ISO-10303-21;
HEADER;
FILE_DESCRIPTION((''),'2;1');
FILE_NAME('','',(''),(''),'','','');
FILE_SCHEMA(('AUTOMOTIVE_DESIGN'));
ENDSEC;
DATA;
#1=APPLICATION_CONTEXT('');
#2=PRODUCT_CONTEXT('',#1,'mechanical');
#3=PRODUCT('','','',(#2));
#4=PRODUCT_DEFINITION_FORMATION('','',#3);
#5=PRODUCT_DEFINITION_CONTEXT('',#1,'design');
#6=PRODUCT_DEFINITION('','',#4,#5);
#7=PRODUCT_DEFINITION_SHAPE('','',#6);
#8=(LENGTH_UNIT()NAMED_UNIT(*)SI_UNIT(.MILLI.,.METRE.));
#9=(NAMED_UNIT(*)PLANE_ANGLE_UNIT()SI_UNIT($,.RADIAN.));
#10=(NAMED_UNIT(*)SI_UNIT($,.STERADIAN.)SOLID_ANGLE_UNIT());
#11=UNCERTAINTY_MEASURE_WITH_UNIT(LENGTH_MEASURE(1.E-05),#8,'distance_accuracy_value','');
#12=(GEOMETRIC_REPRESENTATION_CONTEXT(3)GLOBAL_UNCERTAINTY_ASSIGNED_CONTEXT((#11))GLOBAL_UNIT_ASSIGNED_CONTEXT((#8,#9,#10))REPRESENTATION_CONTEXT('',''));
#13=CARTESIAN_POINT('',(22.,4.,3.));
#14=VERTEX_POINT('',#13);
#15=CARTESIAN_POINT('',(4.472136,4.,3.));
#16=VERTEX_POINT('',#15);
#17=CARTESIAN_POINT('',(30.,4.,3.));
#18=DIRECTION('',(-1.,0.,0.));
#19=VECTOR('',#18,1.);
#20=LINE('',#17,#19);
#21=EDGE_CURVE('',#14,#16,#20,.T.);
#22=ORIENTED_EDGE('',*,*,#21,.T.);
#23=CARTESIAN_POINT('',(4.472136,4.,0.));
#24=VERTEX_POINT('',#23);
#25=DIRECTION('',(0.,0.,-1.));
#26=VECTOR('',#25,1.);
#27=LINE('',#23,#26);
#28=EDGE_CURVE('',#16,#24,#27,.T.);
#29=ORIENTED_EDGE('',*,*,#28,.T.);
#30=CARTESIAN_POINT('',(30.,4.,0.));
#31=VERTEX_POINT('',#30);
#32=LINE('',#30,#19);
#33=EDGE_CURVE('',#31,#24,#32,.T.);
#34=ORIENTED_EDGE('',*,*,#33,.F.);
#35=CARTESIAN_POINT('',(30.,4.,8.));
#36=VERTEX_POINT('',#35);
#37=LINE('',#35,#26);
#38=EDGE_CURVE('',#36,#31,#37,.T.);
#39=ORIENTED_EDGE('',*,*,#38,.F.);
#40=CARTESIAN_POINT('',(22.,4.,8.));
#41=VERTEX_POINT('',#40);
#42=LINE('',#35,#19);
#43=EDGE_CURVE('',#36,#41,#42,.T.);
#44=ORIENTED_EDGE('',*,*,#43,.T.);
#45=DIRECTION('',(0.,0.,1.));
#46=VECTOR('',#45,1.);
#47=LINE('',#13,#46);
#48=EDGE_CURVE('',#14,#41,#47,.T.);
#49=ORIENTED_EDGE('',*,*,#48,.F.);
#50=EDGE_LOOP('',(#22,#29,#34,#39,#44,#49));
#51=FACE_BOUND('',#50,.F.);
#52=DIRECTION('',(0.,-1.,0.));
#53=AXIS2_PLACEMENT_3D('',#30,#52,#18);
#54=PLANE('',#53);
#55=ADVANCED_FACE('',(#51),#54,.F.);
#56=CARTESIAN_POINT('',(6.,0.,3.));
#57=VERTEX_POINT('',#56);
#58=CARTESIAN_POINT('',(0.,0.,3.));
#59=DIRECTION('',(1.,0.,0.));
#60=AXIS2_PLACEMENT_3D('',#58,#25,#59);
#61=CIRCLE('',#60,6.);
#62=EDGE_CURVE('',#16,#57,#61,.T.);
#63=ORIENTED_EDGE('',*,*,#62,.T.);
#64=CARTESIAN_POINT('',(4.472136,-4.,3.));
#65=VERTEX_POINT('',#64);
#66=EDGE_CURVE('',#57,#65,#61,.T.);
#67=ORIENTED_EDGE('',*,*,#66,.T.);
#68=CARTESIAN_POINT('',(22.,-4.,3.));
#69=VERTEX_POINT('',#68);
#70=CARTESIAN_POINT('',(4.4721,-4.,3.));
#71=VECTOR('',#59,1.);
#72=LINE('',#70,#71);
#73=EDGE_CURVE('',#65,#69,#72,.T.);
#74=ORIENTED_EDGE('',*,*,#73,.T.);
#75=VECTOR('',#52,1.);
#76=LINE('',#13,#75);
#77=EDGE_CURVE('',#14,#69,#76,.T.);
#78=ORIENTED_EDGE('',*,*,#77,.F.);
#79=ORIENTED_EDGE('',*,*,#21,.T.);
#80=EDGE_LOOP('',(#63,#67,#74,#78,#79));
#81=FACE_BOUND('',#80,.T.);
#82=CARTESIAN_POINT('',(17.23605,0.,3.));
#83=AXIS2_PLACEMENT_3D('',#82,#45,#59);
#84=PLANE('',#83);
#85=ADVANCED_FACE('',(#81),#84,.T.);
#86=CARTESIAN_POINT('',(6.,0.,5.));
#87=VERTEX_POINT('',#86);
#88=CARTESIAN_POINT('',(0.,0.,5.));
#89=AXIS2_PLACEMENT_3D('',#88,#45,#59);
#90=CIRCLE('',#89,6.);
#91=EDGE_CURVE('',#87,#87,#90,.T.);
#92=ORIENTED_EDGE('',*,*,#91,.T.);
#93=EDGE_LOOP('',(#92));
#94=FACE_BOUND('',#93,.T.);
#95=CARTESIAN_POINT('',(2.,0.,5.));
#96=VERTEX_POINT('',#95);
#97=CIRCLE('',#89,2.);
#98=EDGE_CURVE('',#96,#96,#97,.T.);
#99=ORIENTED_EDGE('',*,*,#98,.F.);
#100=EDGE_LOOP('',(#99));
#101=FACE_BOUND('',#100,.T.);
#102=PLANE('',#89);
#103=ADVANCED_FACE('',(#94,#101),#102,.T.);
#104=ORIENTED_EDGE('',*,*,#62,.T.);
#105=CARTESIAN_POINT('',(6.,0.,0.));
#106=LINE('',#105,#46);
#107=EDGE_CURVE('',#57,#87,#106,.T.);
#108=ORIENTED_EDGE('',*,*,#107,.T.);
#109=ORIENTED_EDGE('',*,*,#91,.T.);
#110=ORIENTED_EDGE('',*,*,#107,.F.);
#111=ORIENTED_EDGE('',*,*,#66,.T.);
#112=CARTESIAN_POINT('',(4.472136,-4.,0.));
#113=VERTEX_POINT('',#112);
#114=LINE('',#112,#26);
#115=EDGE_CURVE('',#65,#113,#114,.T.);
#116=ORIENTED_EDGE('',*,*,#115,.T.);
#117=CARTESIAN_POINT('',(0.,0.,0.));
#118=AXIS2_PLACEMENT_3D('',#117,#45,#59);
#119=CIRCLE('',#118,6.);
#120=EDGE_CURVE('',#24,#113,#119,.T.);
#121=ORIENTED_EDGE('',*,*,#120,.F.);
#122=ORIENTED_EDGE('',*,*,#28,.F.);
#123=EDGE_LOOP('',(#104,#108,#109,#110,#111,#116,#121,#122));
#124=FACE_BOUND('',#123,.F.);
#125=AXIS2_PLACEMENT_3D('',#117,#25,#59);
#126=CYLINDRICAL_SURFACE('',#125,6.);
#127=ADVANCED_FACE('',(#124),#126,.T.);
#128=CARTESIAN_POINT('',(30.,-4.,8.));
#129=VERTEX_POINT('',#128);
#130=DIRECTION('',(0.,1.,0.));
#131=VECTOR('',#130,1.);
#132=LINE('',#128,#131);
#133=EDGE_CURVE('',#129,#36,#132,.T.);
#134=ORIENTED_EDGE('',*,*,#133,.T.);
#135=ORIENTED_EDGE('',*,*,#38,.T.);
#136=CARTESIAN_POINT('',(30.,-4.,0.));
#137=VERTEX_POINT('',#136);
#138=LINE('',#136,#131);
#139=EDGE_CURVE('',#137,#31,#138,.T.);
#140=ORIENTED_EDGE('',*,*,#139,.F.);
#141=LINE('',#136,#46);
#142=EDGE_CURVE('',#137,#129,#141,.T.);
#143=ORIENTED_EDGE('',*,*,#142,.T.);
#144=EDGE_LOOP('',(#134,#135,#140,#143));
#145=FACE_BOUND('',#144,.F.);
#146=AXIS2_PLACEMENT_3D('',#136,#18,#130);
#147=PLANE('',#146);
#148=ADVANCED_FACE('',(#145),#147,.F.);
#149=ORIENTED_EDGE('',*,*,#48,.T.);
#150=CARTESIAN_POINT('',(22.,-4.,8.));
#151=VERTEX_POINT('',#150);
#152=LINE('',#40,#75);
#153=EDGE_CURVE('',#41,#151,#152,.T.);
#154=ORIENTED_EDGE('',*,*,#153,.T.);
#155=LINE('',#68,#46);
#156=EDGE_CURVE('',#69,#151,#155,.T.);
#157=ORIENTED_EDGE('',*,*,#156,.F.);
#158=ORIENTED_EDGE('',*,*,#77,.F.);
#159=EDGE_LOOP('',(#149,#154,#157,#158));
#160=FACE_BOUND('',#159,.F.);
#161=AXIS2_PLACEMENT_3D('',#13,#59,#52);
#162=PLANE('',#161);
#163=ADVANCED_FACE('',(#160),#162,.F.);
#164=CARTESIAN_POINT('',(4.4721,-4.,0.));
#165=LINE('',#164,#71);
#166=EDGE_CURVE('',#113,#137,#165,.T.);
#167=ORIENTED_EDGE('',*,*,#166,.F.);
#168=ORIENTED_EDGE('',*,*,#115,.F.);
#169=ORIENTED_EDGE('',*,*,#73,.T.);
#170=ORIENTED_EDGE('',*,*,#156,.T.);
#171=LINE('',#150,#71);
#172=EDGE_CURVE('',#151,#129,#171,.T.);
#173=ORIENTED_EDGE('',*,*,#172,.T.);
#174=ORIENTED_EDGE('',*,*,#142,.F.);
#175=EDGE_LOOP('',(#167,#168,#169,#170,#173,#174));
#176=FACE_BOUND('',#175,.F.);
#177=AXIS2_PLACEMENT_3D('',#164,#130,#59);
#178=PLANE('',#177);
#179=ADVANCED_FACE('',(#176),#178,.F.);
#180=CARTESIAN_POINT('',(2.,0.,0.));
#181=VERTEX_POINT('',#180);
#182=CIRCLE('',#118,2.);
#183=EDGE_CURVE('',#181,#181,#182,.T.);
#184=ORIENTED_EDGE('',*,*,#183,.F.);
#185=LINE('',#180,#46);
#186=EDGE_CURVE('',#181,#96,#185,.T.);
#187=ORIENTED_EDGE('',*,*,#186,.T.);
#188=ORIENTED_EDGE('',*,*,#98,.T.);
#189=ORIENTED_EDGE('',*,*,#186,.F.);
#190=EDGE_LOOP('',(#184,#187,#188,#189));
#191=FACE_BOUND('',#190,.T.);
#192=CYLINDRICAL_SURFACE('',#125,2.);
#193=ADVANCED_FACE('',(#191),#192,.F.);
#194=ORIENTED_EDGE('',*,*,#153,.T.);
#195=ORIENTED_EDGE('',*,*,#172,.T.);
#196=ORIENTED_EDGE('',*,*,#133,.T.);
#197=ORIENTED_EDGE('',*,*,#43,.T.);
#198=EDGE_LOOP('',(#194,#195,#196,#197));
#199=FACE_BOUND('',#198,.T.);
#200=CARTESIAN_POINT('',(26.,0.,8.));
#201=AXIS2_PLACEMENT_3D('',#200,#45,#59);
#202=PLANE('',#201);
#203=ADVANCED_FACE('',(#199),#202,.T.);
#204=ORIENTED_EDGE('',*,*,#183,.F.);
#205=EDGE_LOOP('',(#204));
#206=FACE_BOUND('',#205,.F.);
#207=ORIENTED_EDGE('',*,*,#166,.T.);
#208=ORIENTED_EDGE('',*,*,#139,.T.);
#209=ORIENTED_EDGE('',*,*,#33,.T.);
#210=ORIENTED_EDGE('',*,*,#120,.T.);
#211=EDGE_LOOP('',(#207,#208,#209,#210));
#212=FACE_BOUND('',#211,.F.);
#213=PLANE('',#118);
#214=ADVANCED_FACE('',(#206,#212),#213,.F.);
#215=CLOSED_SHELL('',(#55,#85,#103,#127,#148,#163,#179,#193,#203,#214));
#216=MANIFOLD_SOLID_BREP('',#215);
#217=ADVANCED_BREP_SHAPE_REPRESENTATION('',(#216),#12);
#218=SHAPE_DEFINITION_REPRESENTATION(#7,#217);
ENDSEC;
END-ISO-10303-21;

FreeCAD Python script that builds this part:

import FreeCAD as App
import Part
import Sketcher

V = App.Vector
Q = App.Units.Quantity


def add_polygon(sketch, points):
    """Adds a closed chain of lines whose ends are joined by coincident constraints."""
    first, n = sketch.GeometryCount, len(points)
    for a, b in zip(points, points[1:] + points[:1]):
        sketch.addGeometry(Part.LineSegment(App.Vector(*a, 0), App.Vector(*b, 0)), False)
    for i in range(n):
        sketch.addConstraint(Sketcher.Constraint("Coincident", first + i, 2, first + (i + 1) % n, 1))

doc = App.newDocument("Part")
params = doc.addObject("Spreadsheet::Sheet", "Params")
for row, (alias, value) in enumerate([
    ("sketch1_diameter", "12 mm"),
    ("sketch1_diameter2", "4 mm"),
    ("pad1_length", "5 mm"),
    ("pad2_length", "3 mm"),
    ("sketch3_width", "8 mm"),
    ("pad3_length", "5 mm"),
], start=1):
    params.set(f"A{row}", alias)
    params.set(f"B{row}", "=" + value)
    params.setAlias(f"B{row}", alias)

body = doc.addObject("PartDesign::Body", "Body")

# Sketch on XY plane
sketch1 = body.newObject("Sketcher::SketchObject", "Sketch")
sketch1.AttachmentSupport = (doc.getObject("XY_Plane"), [""])
sketch1.MapMode = "FlatFace"
sketch1.addGeometry([
    Part.Circle(V(0, 0, 0), V(0, 0, 1), 6),
    Part.Circle(V(0, 0, 0), V(0, 0, 1), 2),
], False)
sketch1.addConstraint([
    Sketcher.Constraint("Coincident", 0, 3, -1, 1),
    Sketcher.Constraint("Coincident", 1, 3, -1, 1),
    Sketcher.Constraint("Diameter", 0, Q("12 mm")),
    Sketcher.Constraint("Diameter", 1, Q("4 mm")),
])
sketch1.setExpression("Constraints[2]", "Params.sketch1_diameter")
sketch1.setExpression("Constraints[3]", "Params.sketch1_diameter2")
pad1 = body.newObject("PartDesign::Pad", "Pad")
pad1.Profile = sketch1
pad1.setExpression("Length", "Params.pad1_length")

# Sketch on XY plane
sketch2 = body.newObject("Sketcher::SketchObject", "Sketch001")
sketch2.AttachmentSupport = (doc.getObject("XY_Plane"), [""])
sketch2.MapMode = "FlatFace"
add_polygon(sketch2, [(4, -4), (4, 4), (30, 4), (30, -4)])  # lines 0-3
sketch2.addConstraint([
    Sketcher.Constraint("Vertical", 0),
    Sketcher.Constraint("Horizontal", 1),
    Sketcher.Constraint("Vertical", 2),
    Sketcher.Constraint("Horizontal", 3),
    Sketcher.Constraint("DistanceY", -1, 1, 0, 2, Q("4 mm")),
    Sketcher.Constraint("DistanceY", 2, 2, -1, 1, Q("4 mm")),
    Sketcher.Constraint("DistanceX", -1, 1, 1, 2, Q("30 mm")),
    Sketcher.Constraint("DistanceX", 1, 1, 1, 2, Q("25.528 mm")),
])
pad2 = body.newObject("PartDesign::Pad", "Pad001")
pad2.Profile = sketch2
pad2.setExpression("Length", "Params.pad2_length")

# Sketch on XY plane
sketch3 = body.newObject("Sketcher::SketchObject", "Sketch002")
sketch3.AttachmentSupport = (doc.getObject("XY_Plane"), [""])
sketch3.MapMode = "FlatFace"
sketch3.AttachmentOffset = App.Placement(V(0, 0, 3), App.Rotation())
add_polygon(sketch3, [(30, -4), (30, 4), (22, 4), (22, -4)])  # lines 0-3
sketch3.addConstraint([
    Sketcher.Constraint("Vertical", 0),
    Sketcher.Constraint("Horizontal", 1),
    Sketcher.Constraint("Vertical", 2),
    Sketcher.Constraint("Horizontal", 3),
    Sketcher.Constraint("Equal", 3, 0),
    Sketcher.Constraint("DistanceX", 1, 2, 1, 1, Q("8 mm")),
    Sketcher.Constraint("DistanceX", -1, 1, 0, 2, Q("30 mm")),
    Sketcher.Constraint("DistanceY", -1, 1, 0, 2, Q("4 mm")),
])
sketch3.setExpression("Constraints[9]", "Params.sketch3_width")
pad3 = body.newObject("PartDesign::Pad", "Pad002")
pad3.Profile = sketch3
pad3.setExpression("Length", "Params.pad3_length")

doc.recompute()
